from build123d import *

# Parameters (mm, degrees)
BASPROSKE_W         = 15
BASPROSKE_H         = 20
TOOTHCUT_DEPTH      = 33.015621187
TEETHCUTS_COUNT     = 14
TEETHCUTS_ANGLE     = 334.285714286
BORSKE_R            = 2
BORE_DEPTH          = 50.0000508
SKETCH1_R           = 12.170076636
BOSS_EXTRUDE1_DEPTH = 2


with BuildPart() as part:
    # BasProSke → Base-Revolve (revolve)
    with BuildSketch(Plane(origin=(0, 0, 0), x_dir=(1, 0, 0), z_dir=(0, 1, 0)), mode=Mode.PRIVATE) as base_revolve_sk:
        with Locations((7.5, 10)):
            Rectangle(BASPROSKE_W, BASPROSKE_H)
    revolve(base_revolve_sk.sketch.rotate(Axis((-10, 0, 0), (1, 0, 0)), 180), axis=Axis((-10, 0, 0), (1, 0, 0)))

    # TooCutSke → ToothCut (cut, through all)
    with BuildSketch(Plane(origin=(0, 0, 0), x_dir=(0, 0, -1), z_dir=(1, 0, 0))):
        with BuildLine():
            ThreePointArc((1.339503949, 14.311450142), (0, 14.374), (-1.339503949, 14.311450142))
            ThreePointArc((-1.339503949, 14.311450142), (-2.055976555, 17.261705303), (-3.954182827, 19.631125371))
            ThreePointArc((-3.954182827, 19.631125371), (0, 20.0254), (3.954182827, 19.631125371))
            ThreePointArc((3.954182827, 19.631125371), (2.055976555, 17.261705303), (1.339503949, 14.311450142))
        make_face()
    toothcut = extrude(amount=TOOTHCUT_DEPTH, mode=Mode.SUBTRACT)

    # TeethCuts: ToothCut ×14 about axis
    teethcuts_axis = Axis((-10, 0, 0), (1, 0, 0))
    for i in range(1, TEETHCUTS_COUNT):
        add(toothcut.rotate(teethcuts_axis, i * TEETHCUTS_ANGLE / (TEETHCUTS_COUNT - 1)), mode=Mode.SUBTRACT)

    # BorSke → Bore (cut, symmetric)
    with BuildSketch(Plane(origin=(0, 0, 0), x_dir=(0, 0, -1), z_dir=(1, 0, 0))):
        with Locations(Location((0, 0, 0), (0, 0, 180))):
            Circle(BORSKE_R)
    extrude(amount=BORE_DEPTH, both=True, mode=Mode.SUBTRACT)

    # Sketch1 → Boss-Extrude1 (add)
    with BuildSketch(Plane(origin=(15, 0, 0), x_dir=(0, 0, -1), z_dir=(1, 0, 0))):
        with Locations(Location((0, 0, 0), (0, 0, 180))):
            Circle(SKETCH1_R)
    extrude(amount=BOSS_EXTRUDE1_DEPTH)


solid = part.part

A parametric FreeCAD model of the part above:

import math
import FreeCAD as App
import Part
import Sketcher
Q = App.Units.Quantity


def add_polygon(sketch, points):
    """Adds a closed chain of lines whose ends are joined by coincident constraints."""
    first, n = sketch.GeometryCount, len(points)
    for a, b in zip(points, points[1:] + points[:1]):
        sketch.addGeometry(Part.LineSegment(App.Vector(*a, 0), App.Vector(*b, 0)), False)
    for i in range(n):
        sketch.addConstraint(Sketcher.Constraint("Coincident", first + i, 2, first + (i + 1) % n, 1))

doc = App.newDocument("Part")
body = doc.addObject("PartDesign::Body", "Body")

# Sketch on XZ plane
sketch1 = body.newObject("Sketcher::SketchObject", "Sketch")
sketch1.AttachmentSupport = (doc.getObject("XZ_Plane"), [""])
sketch1.MapMode = "FlatFace"
add_polygon(sketch1, [(0, -20), (0, 0), (15, 0), (15, -20)])  # lines 0-3
sketch1.addConstraint(Sketcher.Constraint("Vertical", 0))
sketch1.addConstraint(Sketcher.Constraint("Horizontal", 1))
sketch1.addConstraint(Sketcher.Constraint("Vertical", 2))
sketch1.addConstraint(Sketcher.Constraint("Horizontal", 3))
sketch1.addConstraint(Sketcher.Constraint("Coincident", 0, 2, -1, 1))
sketch1.addConstraint(Sketcher.Constraint("DistanceX", 1, 1, 1, 2, Q("15 mm")))
sketch1.addConstraint(Sketcher.Constraint("DistanceY", 0, 1, 0, 2, Q("20 mm")))
revolution = body.newObject("PartDesign::Revolution", "Revolution")
revolution.Profile = sketch1
revolution.ReferenceAxis = (sketch1, ["H_Axis"])
revolution.Angle = 360

# Sketch on YZ plane
sketch2 = body.newObject("Sketcher::SketchObject", "Sketch001")
sketch2.AttachmentSupport = (doc.getObject("YZ_Plane"), [""])
sketch2.MapMode = "FlatFace"
sketch2.addGeometry(Part.ArcOfCircle(Part.Circle(App.Vector(0, 0, 0), App.Vector(0, 0, 1), 14.4), math.radians(-5.35), math.radians(5.35)), False)
sketch2.addGeometry(Part.ArcOfCircle(Part.Circle(App.Vector(14.2, -8.3, 0), App.Vector(0, 0, 1), 7), math.radians(39), math.radians(89)), False)
sketch2.addGeometry(Part.ArcOfCircle(Part.Circle(App.Vector(0, 0, 0), App.Vector(0, 0, 1), 20), math.radians(-11), math.radians(11)), False)
sketch2.addGeometry(Part.ArcOfCircle(Part.Circle(App.Vector(14.2, 8.3, 0), App.Vector(0, 0, 1), 7), math.radians(-89), math.radians(-39)), False)
sketch2.addConstraint(Sketcher.Constraint("Coincident", 0, 1, 1, 2))
sketch2.addConstraint(Sketcher.Constraint("Coincident", 1, 1, 2, 1))
sketch2.addConstraint(Sketcher.Constraint("Coincident", 2, 2, 3, 2))
sketch2.addConstraint(Sketcher.Constraint("Coincident", 3, 1, 0, 2))
sketch2.addConstraint(Sketcher.Constraint("Coincident", 0, 3, -1, 1))
sketch2.addConstraint(Sketcher.Constraint("Coincident", 2, 3, -1, 1))
sketch2.addConstraint(Sketcher.Constraint("Equal", 1, 3))
sketch2.addConstraint(Sketcher.Constraint("Symmetric", 1, 3, 3, 3, -1))
sketch2.addConstraint(Sketcher.Constraint("Radius", 1, Q("7 mm")))
sketch2.addConstraint(Sketcher.Constraint("Radius", 0, Q("14.374 mm")))
sketch2.addConstraint(Sketcher.Constraint("Radius", 2, Q("20.0254 mm")))
sketch2.addConstraint(Sketcher.Constraint("DistanceX", -1, 1, 0, 1, Q("14.31145 mm")))
sketch2.addConstraint(Sketcher.Constraint("DistanceY", 1, 1, 0, 1, Q("2.614679 mm")))
pocket1 = body.newObject("PartDesign::Pocket", "Pocket")
pocket1.Profile = sketch2
pocket1.Type = "ThroughAll"
pocket1.Reversed = True
doc.recompute()

polarpattern = body.newObject("PartDesign::PolarPattern", "PolarPattern")
polarpattern.Originals = [pocket1]
polarpattern.Axis = (doc.getObject("X_Axis"), [""])
polarpattern.Angle = 360
polarpattern.Occurrences = 14
body.Tip = polarpattern

# Sketch on YZ plane
sketch3 = body.newObject("Sketcher::SketchObject", "Sketch002")
sketch3.AttachmentSupport = (doc.getObject("YZ_Plane"), [""])
sketch3.MapMode = "FlatFace"
sketch3.addGeometry(Part.Circle(App.Vector(0, 0, 0), App.Vector(0, 0, 1), 2), False)
sketch3.addConstraint(Sketcher.Constraint("Coincident", 0, 3, -1, 1))
sketch3.addConstraint(Sketcher.Constraint("Diameter", 0, Q("4 mm")))
pocket2 = body.newObject("PartDesign::Pocket", "Pocket001")
pocket2.Profile = sketch3
pocket2.Length = 100.000102
pocket2.Midplane = True

# Sketch on YZ plane
sketch4 = body.newObject("Sketcher::SketchObject", "Sketch003")
sketch4.AttachmentSupport = (doc.getObject("YZ_Plane"), [""])
sketch4.MapMode = "FlatFace"
sketch4.AttachmentOffset = App.Placement(App.Vector(0, 0, 15), App.Rotation())
sketch4.addGeometry(Part.Circle(App.Vector(0, 0, 0), App.Vector(0, 0, 1), 12), False)
sketch4.addConstraint(Sketcher.Constraint("Coincident", 0, 3, -1, 1))
sketch4.addConstraint(Sketcher.Constraint("Diameter", 0, Q("24.340153 mm")))
pad1 = body.newObject("PartDesign::Pad", "Pad")
pad1.Profile = sketch4
pad1.Length = 2

doc.recompute()
